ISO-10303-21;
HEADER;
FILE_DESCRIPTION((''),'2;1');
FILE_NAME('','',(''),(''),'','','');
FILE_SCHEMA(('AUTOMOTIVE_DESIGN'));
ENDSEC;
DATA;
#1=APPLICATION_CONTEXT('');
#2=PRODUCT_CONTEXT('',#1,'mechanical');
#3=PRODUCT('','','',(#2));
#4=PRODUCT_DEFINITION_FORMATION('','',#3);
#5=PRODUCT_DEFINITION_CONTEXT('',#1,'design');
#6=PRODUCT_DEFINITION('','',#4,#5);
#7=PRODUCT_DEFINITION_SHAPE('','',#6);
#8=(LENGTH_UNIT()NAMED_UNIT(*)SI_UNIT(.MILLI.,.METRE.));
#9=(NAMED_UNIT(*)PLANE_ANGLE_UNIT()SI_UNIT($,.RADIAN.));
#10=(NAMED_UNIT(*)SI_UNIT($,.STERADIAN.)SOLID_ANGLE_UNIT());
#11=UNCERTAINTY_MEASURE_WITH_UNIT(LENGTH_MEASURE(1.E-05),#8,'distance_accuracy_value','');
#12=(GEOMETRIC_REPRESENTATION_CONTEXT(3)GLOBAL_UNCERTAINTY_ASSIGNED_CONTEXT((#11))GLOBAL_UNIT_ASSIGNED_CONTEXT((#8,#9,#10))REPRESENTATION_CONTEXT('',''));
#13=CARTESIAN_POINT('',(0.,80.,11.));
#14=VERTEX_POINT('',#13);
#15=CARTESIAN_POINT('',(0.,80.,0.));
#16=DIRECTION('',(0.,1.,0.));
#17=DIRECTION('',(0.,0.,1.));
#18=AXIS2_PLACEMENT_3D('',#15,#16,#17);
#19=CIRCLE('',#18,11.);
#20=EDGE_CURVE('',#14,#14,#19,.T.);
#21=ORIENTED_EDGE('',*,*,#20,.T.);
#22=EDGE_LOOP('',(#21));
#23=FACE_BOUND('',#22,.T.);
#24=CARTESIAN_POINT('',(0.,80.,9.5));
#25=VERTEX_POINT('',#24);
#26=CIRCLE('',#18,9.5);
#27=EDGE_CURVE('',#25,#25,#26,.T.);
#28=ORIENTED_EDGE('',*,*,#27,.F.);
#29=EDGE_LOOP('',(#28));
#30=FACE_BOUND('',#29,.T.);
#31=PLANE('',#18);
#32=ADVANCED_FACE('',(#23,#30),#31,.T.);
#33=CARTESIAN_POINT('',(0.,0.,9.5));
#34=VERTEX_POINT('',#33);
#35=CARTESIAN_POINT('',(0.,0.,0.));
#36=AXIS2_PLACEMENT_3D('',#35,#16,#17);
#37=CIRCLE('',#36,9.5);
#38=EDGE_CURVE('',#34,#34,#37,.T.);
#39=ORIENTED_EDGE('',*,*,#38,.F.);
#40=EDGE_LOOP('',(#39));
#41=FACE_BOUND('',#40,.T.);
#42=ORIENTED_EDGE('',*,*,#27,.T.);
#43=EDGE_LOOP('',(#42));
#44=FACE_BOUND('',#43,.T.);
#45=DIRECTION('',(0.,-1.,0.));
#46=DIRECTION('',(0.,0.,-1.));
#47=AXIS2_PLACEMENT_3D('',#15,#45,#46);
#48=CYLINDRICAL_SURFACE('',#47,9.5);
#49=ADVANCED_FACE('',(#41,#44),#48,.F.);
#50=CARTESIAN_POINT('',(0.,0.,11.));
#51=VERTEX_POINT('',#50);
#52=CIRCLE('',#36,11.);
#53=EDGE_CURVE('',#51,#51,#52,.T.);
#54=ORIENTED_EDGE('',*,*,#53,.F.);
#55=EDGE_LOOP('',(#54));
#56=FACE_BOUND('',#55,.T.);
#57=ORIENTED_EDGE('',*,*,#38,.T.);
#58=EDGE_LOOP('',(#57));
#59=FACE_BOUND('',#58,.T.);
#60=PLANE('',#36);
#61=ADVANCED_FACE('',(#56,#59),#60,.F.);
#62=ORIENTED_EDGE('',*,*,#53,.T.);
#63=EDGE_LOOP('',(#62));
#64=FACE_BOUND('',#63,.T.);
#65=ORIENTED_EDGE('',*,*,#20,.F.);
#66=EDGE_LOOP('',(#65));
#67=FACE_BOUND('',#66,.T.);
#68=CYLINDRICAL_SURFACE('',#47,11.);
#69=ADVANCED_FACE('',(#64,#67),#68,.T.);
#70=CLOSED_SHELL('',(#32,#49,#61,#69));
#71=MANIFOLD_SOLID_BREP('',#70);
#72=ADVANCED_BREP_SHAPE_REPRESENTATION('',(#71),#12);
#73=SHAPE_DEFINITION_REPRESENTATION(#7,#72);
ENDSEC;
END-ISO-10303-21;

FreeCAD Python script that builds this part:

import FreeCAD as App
import Part
import Sketcher
from FreeCAD import Vector

doc = App.newDocument("Part")
params = doc.addObject("Spreadsheet::Sheet", "Params")
for row, (alias, value) in enumerate([
    ("sketch1_diameter", "22 mm"),
    ("sketch1_diameter2", "19 mm"),
    ("pad1_length", "80 mm"),
], start=1):
    params.set(f"A{row}", alias)
    params.set(f"B{row}", "=" + value)
    params.setAlias(f"B{row}", alias)

body = doc.addObject("PartDesign::Body", "Body")

# Sketch on XZ plane
sketch1 = body.newObject("Sketcher::SketchObject", "Sketch")
sketch1.AttachmentSupport = (doc.getObject("XZ_Plane"), [""])
sketch1.MapMode = "FlatFace"
sketch1.addGeometry(Part.Circle(Vector(0, 0, 0), Vector(0, 0, 1), 11), False)
sketch1.addGeometry(Part.Circle(Vector(0, 0, 0), Vector(0, 0, 1), 10), False)
sketch1.addConstraint(Sketcher.Constraint("Coincident", 0, 3, -1, 1))
sketch1.addConstraint(Sketcher.Constraint("Coincident", 1, 3, -1, 1))
sketch1.addConstraint(Sketcher.Constraint("Diameter", 0, 22.0))
sketch1.addConstraint(Sketcher.Constraint("Diameter", 1, 19.0))
sketch1.setExpression("Constraints[2]", "Params.sketch1_diameter")
sketch1.setExpression("Constraints[3]", "Params.sketch1_diameter2")
pad1 = body.newObject("PartDesign::Pad", "Pad")
pad1.Profile = sketch1
pad1.setExpression("Length", "Params.pad1_length")
pad1.Reversed = True

doc.recompute()
